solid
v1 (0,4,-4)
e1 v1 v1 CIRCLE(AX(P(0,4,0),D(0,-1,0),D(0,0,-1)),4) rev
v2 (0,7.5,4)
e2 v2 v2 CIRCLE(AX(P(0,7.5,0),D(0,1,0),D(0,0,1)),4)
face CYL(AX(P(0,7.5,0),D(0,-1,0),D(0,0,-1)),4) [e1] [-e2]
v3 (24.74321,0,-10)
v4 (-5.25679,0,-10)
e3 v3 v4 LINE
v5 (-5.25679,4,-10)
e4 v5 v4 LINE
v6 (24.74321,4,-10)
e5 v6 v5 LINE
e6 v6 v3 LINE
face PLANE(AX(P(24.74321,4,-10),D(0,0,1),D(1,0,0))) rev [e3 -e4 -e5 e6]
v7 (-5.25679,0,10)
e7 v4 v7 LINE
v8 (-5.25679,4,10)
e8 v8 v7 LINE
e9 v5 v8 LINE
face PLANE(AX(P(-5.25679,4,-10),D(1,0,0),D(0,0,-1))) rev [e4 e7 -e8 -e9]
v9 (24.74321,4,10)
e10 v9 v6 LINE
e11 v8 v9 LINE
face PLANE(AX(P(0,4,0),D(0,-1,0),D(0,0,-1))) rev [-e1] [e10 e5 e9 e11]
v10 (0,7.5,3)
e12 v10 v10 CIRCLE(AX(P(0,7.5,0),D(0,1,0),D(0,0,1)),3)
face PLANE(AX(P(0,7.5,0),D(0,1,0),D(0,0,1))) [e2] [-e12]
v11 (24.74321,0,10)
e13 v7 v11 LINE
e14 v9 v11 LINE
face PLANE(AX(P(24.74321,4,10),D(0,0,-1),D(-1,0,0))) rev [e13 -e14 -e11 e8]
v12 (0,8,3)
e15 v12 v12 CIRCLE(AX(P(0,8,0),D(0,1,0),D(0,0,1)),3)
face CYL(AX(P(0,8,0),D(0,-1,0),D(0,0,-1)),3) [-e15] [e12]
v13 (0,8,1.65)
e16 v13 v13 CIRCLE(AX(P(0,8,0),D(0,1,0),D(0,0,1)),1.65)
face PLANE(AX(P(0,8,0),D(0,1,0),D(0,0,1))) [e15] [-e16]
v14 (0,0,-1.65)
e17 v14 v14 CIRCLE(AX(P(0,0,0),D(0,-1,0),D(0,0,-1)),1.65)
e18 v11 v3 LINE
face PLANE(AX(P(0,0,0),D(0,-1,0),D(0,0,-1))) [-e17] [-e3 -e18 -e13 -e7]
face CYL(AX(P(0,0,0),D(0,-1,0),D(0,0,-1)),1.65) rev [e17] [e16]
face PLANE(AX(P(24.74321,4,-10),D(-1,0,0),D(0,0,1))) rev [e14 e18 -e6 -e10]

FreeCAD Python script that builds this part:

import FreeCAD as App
import Part
import Sketcher
from FreeCAD import Vector
Q = App.Units.Quantity


def add_polygon(sketch, points):
    """Adds a closed chain of lines whose ends are joined by coincident constraints."""
    first, n = sketch.GeometryCount, len(points)
    for a, b in zip(points, points[1:] + points[:1]):
        sketch.addGeometry(Part.LineSegment(App.Vector(*a, 0), App.Vector(*b, 0)), False)
    for i in range(n):
        sketch.addConstraint(Sketcher.Constraint("Coincident", first + i, 2, first + (i + 1) % n, 1))

doc = App.newDocument("Part")
body = doc.addObject("PartDesign::Body", "Body")

# Sketch on XZ plane
sketch1 = body.newObject("Sketcher::SketchObject", "Sketch")
sketch1.AttachmentSupport = (doc.getObject("XZ_Plane"), [""])
sketch1.MapMode = "FlatFace"
add_polygon(sketch1, [(-5.25679, -10), (-5.25679, 10), (24.74321, 10), (24.74321, -10)])  # lines 0-3
sketch1.addConstraint([
    Sketcher.Constraint("Vertical", 0),
    Sketcher.Constraint("Horizontal", 1),
    Sketcher.Constraint("Vertical", 2),
    Sketcher.Constraint("Horizontal", 3),
    Sketcher.Constraint("DistanceX", 1, 1, 1, 2, Q("30 mm")),
    Sketcher.Constraint("DistanceY", 0, 1, 0, 2, Q("20 mm")),
    Sketcher.Constraint("DistanceY", -1, 1, 0, 2, Q("10 mm")),
    Sketcher.Constraint("DistanceX", 0, 2, -1, 1, Q("5.25679 mm")),
])
pad1 = body.newObject("PartDesign::Pad", "Pad")
pad1.Profile = sketch1
pad1.Length = 4
pad1.Reversed = True

# Sketch on XZ plane
sketch2 = body.newObject("Sketcher::SketchObject", "Sketch001")
sketch2.AttachmentSupport = (doc.getObject("XZ_Plane"), [""])
sketch2.MapMode = "FlatFace"
sketch2.AttachmentOffset = App.Placement(Vector(0, 0, -4), App.Rotation())
sketch2.addGeometry(Part.Circle(Vector(0, 0, 0), Vector(0, 0, 1), 4), False)
sketch2.addConstraint([
    Sketcher.Constraint("Coincident", 0, 3, -1, 1),
    Sketcher.Constraint("Diameter", 0, Q("8 mm")),
])
pad2 = body.newObject("PartDesign::Pad", "Pad001")
pad2.Profile = sketch2
pad2.Length = 3.5
pad2.Reversed = True

# Sketch on XZ plane
sketch3 = body.newObject("Sketcher::SketchObject", "Sketch002")
sketch3.AttachmentSupport = (doc.getObject("XZ_Plane"), [""])
sketch3.MapMode = "FlatFace"
sketch3.addGeometry(Part.Circle(Vector(0, 0, 0), Vector(0, 0, 1), 1.65), False)
sketch3.addConstraint([
    Sketcher.Constraint("Coincident", 0, 3, -1, 1),
    Sketcher.Constraint("Diameter", 0, Q("3.3 mm")),
])
doc.recompute()
hole = body.newObject("PartDesign::Hole", "Hole")
hole.Profile = sketch3
hole.ThreadType = "None"
hole.Diameter = 3.3
hole.DepthType = "ThroughAll"

# Sketch on XZ plane
sketch4 = body.newObject("Sketcher::SketchObject", "Sketch003")
sketch4.AttachmentSupport = (doc.getObject("XZ_Plane"), [""])
sketch4.MapMode = "FlatFace"
sketch4.AttachmentOffset = App.Placement(Vector(0, 0, -7.5), App.Rotation())
sketch4.addGeometry([
    Part.Circle(Vector(0, 0, 0), Vector(0, 0, 1), 3),
    Part.Circle(Vector(0, 0, 0), Vector(0, 0, 1), 1.65),
], False)
sketch4.addConstraint([
    Sketcher.Constraint("Coincident", 0, 3, -1, 1),
    Sketcher.Constraint("Coincident", 1, 3, -1, 1),
    Sketcher.Constraint("Diameter", 0, Q("6 mm")),
    Sketcher.Constraint("Diameter", 1, Q("3.3 mm")),
])
pad3 = body.newObject("PartDesign::Pad", "Pad002")
pad3.Profile = sketch4
pad3.Length = 0.5
pad3.Reversed = True

doc.recompute()
